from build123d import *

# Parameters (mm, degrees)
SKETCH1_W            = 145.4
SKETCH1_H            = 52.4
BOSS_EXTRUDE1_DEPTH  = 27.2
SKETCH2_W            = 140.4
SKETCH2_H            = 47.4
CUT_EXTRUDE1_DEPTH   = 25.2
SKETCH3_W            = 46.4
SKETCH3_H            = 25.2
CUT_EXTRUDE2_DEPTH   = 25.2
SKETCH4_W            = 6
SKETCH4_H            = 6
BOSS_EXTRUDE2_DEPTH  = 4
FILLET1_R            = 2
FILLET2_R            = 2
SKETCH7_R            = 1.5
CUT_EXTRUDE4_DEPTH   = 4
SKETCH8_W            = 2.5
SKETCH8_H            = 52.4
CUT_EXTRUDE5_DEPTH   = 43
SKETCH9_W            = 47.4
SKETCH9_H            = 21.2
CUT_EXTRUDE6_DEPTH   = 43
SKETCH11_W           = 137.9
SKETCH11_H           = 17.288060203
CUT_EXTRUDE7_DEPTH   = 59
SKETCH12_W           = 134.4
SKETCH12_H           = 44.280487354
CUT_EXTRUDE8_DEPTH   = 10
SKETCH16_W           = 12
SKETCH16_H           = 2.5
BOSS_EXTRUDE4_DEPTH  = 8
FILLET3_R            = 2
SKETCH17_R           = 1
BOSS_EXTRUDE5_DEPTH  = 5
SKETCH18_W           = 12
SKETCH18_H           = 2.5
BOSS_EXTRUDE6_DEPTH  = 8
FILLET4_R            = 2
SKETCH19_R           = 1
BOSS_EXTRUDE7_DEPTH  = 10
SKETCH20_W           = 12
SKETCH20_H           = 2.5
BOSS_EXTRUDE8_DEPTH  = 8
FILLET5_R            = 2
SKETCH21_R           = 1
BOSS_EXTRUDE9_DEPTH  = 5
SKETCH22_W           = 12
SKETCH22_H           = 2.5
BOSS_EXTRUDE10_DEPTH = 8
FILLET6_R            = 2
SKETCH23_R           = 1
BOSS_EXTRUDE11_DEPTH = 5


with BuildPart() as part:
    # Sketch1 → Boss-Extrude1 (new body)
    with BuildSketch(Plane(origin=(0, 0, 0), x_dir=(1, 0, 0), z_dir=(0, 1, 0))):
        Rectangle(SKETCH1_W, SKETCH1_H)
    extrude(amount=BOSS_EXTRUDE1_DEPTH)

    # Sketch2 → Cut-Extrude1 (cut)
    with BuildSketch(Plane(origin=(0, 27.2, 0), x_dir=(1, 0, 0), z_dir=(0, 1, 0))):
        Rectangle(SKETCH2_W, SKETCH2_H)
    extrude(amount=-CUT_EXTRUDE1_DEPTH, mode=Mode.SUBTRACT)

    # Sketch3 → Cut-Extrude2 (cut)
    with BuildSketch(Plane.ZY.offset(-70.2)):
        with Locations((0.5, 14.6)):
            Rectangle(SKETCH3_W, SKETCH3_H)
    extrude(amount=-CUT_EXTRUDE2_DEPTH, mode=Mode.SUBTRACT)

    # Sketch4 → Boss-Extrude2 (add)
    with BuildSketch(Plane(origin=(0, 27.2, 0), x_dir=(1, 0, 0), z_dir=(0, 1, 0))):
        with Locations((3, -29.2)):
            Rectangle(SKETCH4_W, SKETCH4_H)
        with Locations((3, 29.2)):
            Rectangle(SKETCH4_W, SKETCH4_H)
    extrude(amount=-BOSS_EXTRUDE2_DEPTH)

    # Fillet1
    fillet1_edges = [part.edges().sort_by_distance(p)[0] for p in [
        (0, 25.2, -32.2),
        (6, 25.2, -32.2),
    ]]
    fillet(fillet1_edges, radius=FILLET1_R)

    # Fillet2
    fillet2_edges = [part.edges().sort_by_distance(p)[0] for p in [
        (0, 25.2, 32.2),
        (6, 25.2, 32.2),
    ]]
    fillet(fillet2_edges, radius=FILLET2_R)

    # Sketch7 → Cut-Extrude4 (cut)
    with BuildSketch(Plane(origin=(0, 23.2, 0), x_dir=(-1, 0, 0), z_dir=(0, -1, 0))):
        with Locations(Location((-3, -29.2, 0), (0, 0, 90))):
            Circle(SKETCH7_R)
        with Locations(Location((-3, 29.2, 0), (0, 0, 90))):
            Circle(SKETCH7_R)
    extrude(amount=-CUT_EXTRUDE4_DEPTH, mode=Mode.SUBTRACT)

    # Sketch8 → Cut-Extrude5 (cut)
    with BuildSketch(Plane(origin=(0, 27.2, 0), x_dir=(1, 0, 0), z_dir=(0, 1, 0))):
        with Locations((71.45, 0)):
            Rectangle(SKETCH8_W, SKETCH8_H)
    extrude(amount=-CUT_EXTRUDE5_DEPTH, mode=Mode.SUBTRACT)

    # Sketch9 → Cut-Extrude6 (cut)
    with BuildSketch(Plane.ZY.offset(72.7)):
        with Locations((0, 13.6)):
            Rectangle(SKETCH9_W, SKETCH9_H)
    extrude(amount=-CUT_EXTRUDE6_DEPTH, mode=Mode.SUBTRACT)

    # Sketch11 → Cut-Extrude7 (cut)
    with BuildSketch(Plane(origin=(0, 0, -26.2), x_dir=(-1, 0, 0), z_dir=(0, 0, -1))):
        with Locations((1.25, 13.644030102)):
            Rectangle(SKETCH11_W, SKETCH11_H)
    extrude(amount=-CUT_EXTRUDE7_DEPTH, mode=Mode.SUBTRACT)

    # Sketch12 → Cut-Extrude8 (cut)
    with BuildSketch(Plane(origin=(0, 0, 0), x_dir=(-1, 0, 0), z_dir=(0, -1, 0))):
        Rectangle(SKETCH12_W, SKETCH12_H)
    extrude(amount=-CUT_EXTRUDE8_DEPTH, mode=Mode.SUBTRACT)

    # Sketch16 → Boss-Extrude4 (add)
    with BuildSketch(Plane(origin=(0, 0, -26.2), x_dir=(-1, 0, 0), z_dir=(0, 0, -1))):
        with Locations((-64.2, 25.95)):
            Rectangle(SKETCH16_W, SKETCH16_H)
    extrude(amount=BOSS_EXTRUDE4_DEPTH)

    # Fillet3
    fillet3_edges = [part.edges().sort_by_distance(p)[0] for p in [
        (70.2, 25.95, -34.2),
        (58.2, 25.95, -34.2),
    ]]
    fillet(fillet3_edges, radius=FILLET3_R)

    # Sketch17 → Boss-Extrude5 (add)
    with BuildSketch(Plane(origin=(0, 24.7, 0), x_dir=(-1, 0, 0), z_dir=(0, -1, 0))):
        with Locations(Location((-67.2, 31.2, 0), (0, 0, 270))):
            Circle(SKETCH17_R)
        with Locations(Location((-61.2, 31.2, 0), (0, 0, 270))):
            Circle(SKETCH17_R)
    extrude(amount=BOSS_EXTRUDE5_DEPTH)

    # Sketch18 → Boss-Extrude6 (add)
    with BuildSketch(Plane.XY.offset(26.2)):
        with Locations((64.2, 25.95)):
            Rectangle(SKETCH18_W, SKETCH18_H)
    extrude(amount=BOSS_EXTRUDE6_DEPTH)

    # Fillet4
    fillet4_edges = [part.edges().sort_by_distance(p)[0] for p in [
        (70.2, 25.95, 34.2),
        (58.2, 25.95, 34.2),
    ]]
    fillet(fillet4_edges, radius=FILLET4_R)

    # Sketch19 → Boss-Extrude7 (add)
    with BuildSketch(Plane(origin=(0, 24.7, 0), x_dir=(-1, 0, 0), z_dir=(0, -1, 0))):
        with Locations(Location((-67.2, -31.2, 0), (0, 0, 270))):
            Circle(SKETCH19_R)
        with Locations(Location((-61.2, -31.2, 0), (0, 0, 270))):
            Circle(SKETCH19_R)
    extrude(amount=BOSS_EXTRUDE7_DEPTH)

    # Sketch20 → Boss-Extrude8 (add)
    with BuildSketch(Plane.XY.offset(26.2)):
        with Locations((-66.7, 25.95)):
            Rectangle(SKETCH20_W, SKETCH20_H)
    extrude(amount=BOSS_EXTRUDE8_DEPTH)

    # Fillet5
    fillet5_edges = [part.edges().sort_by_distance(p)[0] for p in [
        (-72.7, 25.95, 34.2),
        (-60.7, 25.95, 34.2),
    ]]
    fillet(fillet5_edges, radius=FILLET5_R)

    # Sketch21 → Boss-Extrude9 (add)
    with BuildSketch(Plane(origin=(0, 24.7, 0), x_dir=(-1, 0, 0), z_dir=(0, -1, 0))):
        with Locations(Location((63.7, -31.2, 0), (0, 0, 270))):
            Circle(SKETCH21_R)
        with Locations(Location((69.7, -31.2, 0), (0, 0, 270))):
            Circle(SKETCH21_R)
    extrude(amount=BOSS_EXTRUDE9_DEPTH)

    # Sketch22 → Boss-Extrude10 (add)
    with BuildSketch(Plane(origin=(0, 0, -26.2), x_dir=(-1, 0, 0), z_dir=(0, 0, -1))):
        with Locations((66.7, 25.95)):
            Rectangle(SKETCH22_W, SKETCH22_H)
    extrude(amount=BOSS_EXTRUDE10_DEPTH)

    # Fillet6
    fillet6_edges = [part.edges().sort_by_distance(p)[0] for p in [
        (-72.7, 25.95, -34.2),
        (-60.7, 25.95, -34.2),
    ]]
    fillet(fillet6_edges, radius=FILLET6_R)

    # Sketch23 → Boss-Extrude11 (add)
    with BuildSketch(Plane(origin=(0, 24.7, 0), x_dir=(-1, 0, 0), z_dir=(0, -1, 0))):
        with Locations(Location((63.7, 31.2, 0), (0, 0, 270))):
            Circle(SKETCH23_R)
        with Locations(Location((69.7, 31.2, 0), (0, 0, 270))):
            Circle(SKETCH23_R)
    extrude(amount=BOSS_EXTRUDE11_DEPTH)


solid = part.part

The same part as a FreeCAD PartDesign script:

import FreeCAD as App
import Part
import Sketcher

V = App.Vector
Q = App.Units.Quantity


def edges_at(feature, points):
    """Names of the edges that pass closest to the given points."""
    edges = feature.Shape.Edges
    near = lambda p: min(range(len(edges)), key=lambda i: edges[i].distToShape(Part.Vertex(*p))[0])
    return sorted({f"Edge{near(p) + 1}" for p in points})

doc = App.newDocument("Part")
body = doc.addObject("PartDesign::Body", "Body")

sketch1 = doc.addObject("Sketcher::SketchObject", "Sketch")
body.addObject(sketch1)
sketch1.AttachmentSupport = (doc.XZ_Plane, [""])
sketch1.MapMode = "FlatFace"
sketch1.addGeometry([
    Part.LineSegment(V(-73, -26, 0), V(-73, 26, 0)),
    Part.LineSegment(V(-73, 26, 0), V(73, 26, 0)),
    Part.LineSegment(V(73, 26, 0), V(73, -26, 0)),
    Part.LineSegment(V(73, -26, 0), V(-73, -26, 0)),
], False)
sketch1.addConstraint([
    Sketcher.Constraint("Coincident", 0, 2, 1, 1),
    Sketcher.Constraint("Coincident", 1, 2, 2, 1),
    Sketcher.Constraint("Coincident", 2, 2, 3, 1),
    Sketcher.Constraint("Coincident", 3, 2, 0, 1),
    Sketcher.Constraint("Vertical", 0),
    Sketcher.Constraint("Horizontal", 1),
    Sketcher.Constraint("Vertical", 2),
    Sketcher.Constraint("Horizontal", 3),
    Sketcher.Constraint("Symmetric", 0, 2, 2, 2, -1, 1),
    Sketcher.Constraint("DistanceX", 1, 1, 1, 2, Q("145.4 mm")),
    Sketcher.Constraint("DistanceY", 0, 1, 0, 2, Q("52.4 mm")),
])
pad1 = doc.addObject("PartDesign::Pad", "Pad")
body.addObject(pad1)
pad1.Profile = sketch1
pad1.Length = 27.2
pad1.Reversed = True

sketch2 = doc.addObject("Sketcher::SketchObject", "Sketch001")
body.addObject(sketch2)
sketch2.AttachmentSupport = (doc.XZ_Plane, [""])
sketch2.MapMode = "FlatFace"
sketch2.AttachmentOffset = App.Placement(V(0, 0, -27.2), App.Rotation())
sketch2.addGeometry([
    Part.LineSegment(V(-70, -24, 0), V(-70, 24, 0)),
    Part.LineSegment(V(-70, 24, 0), V(70, 24, 0)),
    Part.LineSegment(V(70, 24, 0), V(70, -24, 0)),
    Part.LineSegment(V(70, -24, 0), V(-70, -24, 0)),
], False)
sketch2.addConstraint([
    Sketcher.Constraint("Coincident", 0, 2, 1, 1),
    Sketcher.Constraint("Coincident", 1, 2, 2, 1),
    Sketcher.Constraint("Coincident", 2, 2, 3, 1),
    Sketcher.Constraint("Coincident", 3, 2, 0, 1),
    Sketcher.Constraint("Vertical", 0),
    Sketcher.Constraint("Horizontal", 1),
    Sketcher.Constraint("Vertical", 2),
    Sketcher.Constraint("Horizontal", 3),
    Sketcher.Constraint("Symmetric", 0, 2, 2, 2, -1, 1),
    Sketcher.Constraint("DistanceX", 1, 1, 1, 2, Q("140.4 mm")),
    Sketcher.Constraint("DistanceY", 0, 1, 0, 2, Q("47.4 mm")),
])
pocket1 = doc.addObject("PartDesign::Pocket", "Pocket")
body.addObject(pocket1)
pocket1.Profile = sketch2
pocket1.Length = 25.2
pocket1.Reversed = True

sketch3 = doc.addObject("Sketcher::SketchObject", "Sketch002")
body.addObject(sketch3)
sketch3.AttachmentSupport = (doc.YZ_Plane, [""])
sketch3.MapMode = "FlatFace"
sketch3.AttachmentOffset = App.Placement(V(0, 0, 70.2), App.Rotation())
sketch3.addGeometry([
    Part.LineSegment(V(27, -23, 0), V(2, -23, 0)),
    Part.LineSegment(V(2, -23, 0), V(2, 24, 0)),
    Part.LineSegment(V(2, 24, 0), V(27, 24, 0)),
    Part.LineSegment(V(27, 24, 0), V(27, -23, 0)),
], False)
sketch3.addConstraint([
    Sketcher.Constraint("Coincident", 0, 2, 1, 1),
    Sketcher.Constraint("Coincident", 1, 2, 2, 1),
    Sketcher.Constraint("Coincident", 2, 2, 3, 1),
    Sketcher.Constraint("Coincident", 3, 2, 0, 1),
    Sketcher.Constraint("Horizontal", 0),
    Sketcher.Constraint("Vertical", 1),
    Sketcher.Constraint("Horizontal", 2),
    Sketcher.Constraint("Vertical", 3),
    Sketcher.Constraint("DistanceX", 0, 2, 0, 1, Q("25.2 mm")),
    Sketcher.Constraint("DistanceY", 1, 1, 1, 2, Q("46.4 mm")),
    Sketcher.Constraint("DistanceX", -1, 1, 0, 2, Q("2 mm")),
    Sketcher.Constraint("DistanceY", 0, 2, -1, 1, Q("22.7 mm")),
])
pocket2 = doc.addObject("PartDesign::Pocket", "Pocket001")
body.addObject(pocket2)
pocket2.Profile = sketch3
pocket2.Length = 25.2
pocket2.Reversed = True

sketch4 = doc.addObject("Sketcher::SketchObject", "Sketch003")
body.addObject(sketch4)
sketch4.AttachmentSupport = (doc.XZ_Plane, [""])
sketch4.MapMode = "FlatFace"
sketch4.AttachmentOffset = App.Placement(V(0, 0, -27.2), App.Rotation())
sketch4.addGeometry([
    Part.LineSegment(V(0, 26, 0), V(0, 32, 0)),
    Part.LineSegment(V(0, 32, 0), V(6, 32, 0)),
    Part.LineSegment(V(6, 32, 0), V(6, 26, 0)),
    Part.LineSegment(V(6, 26, 0), V(0, 26, 0)),
    Part.LineSegment(V(0, -32, 0), V(0, -26, 0)),
    Part.LineSegment(V(0, -26, 0), V(6, -26, 0)),
    Part.LineSegment(V(6, -26, 0), V(6, -32, 0)),
    Part.LineSegment(V(6, -32, 0), V(0, -32, 0)),
], False)
sketch4.addConstraint([
    Sketcher.Constraint("Coincident", 0, 2, 1, 1),
    Sketcher.Constraint("Coincident", 1, 2, 2, 1),
    Sketcher.Constraint("Coincident", 2, 2, 3, 1),
    Sketcher.Constraint("Coincident", 3, 2, 0, 1),
    Sketcher.Constraint("Coincident", 4, 2, 5, 1),
    Sketcher.Constraint("Coincident", 5, 2, 6, 1),
    Sketcher.Constraint("Coincident", 6, 2, 7, 1),
    Sketcher.Constraint("Coincident", 7, 2, 4, 1),
    Sketcher.Constraint("Vertical", 0),
    Sketcher.Constraint("Horizontal", 1),
    Sketcher.Constraint("Vertical", 2),
    Sketcher.Constraint("Horizontal", 3),
    Sketcher.Constraint("Vertical", 4),
    Sketcher.Constraint("Horizontal", 5),
    Sketcher.Constraint("Vertical", 6),
    Sketcher.Constraint("Horizontal", 7),
    Sketcher.Constraint("Symmetric", 3, 2, 4, 2, -1, 1),
    Sketcher.Constraint("Symmetric", 1, 2, 6, 2, -1),
    Sketcher.Constraint("PointOnObject", 0, 2, -2),
    Sketcher.Constraint("Equal", 7, 0),
    Sketcher.Constraint("DistanceX", 1, 1, 1, 2, Q("6 mm")),
    Sketcher.Constraint("DistanceY", -1, 1, 0, 2, Q("32.2 mm")),
])
pad2 = doc.addObject("PartDesign::Pad", "Pad001")
body.addObject(pad2)
pad2.Profile = sketch4
pad2.Length = 4
doc.recompute()

fillet = doc.addObject("PartDesign::Fillet", "Fillet")
body.addObject(fillet)
fillet.Base = (pad2, edges_at(pad2, [(0, 25.2, -32.2), (6, 25.2, -32.2)]))
fillet.Radius = 2
doc.recompute()

fillet2 = doc.addObject("PartDesign::Fillet", "Fillet001")
body.addObject(fillet2)
fillet2.Base = (fillet, edges_at(fillet, [(0, 25.2, 32.2), (6, 25.2, 32.2)]))
fillet2.Radius = 2

sketch5 = doc.addObject("Sketcher::SketchObject", "Sketch004")
body.addObject(sketch5)
sketch5.AttachmentSupport = (doc.XZ_Plane, [""])
sketch5.MapMode = "FlatFace"
sketch5.AttachmentOffset = App.Placement(V(0, 0, -23.2), App.Rotation())
sketch5.addGeometry([
    Part.Circle(V(3, 29.2, 0), V(0, 0, 1), 1.5),
    Part.Circle(V(3, -29.2, 0), V(0, 0, 1), 1.5),
], False)
sketch5.addConstraint([
    Sketcher.Constraint("Equal", 0, 1),
    Sketcher.Constraint("Symmetric", 0, 3, 1, 3, -1),
    Sketcher.Constraint("Diameter", 0, Q("3 mm")),
    Sketcher.Constraint("DistanceX", -1, 1, 0, 3, Q("3 mm")),
    Sketcher.Constraint("DistanceY", -1, 1, 0, 3, Q("29.2 mm")),
])
pocket3 = doc.addObject("PartDesign::Pocket", "Pocket002")
body.addObject(pocket3)
pocket3.Profile = sketch5
pocket3.Length = 4

sketch6 = doc.addObject("Sketcher::SketchObject", "Sketch005")
body.addObject(sketch6)
sketch6.AttachmentSupport = (doc.XZ_Plane, [""])
sketch6.MapMode = "FlatFace"
sketch6.AttachmentOffset = App.Placement(V(0, 0, -27.2), App.Rotation())
sketch6.addGeometry([
    Part.LineSegment(V(70.2, -26.2, 0), V(70.2, 26.2, 0)),
    Part.LineSegment(V(70.2, 26.2, 0), V(72.7, 26.2, 0)),
    Part.LineSegment(V(72.7, 26.2, 0), V(72.7, -26.2, 0)),
    Part.LineSegment(V(72.7, -26.2, 0), V(70.2, -26.2, 0)),
], False)
sketch6.addConstraint([
    Sketcher.Constraint("Coincident", 0, 2, 1, 1),
    Sketcher.Constraint("Coincident", 1, 2, 2, 1),
    Sketcher.Constraint("Coincident", 2, 2, 3, 1),
    Sketcher.Constraint("Coincident", 3, 2, 0, 1),
    Sketcher.Constraint("Vertical", 0),
    Sketcher.Constraint("Horizontal", 1),
    Sketcher.Constraint("Vertical", 2),
    Sketcher.Constraint("Horizontal", 3),
    Sketcher.Constraint("DistanceX", 1, 1, 1, 2, Q("2.5 mm")),
    Sketcher.Constraint("DistanceY", 0, 1, 0, 2, Q("52.4 mm")),
    Sketcher.Constraint("DistanceX", -1, 1, 0, 2, Q("70.2 mm")),
    Sketcher.Constraint("DistanceY", -1, 1, 0, 2, Q("26.2 mm")),
])
pocket4 = doc.addObject("PartDesign::Pocket", "Pocket003")
body.addObject(pocket4)
pocket4.Profile = sketch6
pocket4.Length = 43
pocket4.Reversed = True

sketch7 = doc.addObject("Sketcher::SketchObject", "Sketch006")
body.addObject(sketch7)
sketch7.AttachmentSupport = (doc.YZ_Plane, [""])
sketch7.MapMode = "FlatFace"
sketch7.AttachmentOffset = App.Placement(V(0, 0, -72.7), App.Rotation())
sketch7.addGeometry([
    Part.LineSegment(V(24, -24, 0), V(3, -24, 0)),
    Part.LineSegment(V(3, -24, 0), V(3, 24, 0)),
    Part.LineSegment(V(3, 24, 0), V(24, 24, 0)),
    Part.LineSegment(V(24, 24, 0), V(24, -24, 0)),
], False)
sketch7.addConstraint([
    Sketcher.Constraint("Coincident", 0, 2, 1, 1),
    Sketcher.Constraint("Coincident", 1, 2, 2, 1),
    Sketcher.Constraint("Coincident", 2, 2, 3, 1),
    Sketcher.Constraint("Coincident", 3, 2, 0, 1),
    Sketcher.Constraint("Horizontal", 0),
    Sketcher.Constraint("Vertical", 1),
    Sketcher.Constraint("Horizontal", 2),
    Sketcher.Constraint("Vertical", 3),
    Sketcher.Constraint("DistanceX", 0, 2, 0, 1, Q("21.2 mm")),
    Sketcher.Constraint("DistanceY", 1, 1, 1, 2, Q("47.4 mm")),
    Sketcher.Constraint("DistanceX", -1, 1, 0, 2, Q("3 mm")),
    Sketcher.Constraint("DistanceY", 0, 2, -1, 1, Q("23.7 mm")),
])
pocket5 = doc.addObject("PartDesign::Pocket", "Pocket004")
body.addObject(pocket5)
pocket5.Profile = sketch7
pocket5.Length = 43
pocket5.Reversed = True

sketch8 = doc.addObject("Sketcher::SketchObject", "Sketch007")
body.addObject(sketch8)
sketch8.AttachmentSupport = (doc.XY_Plane, [""])
sketch8.MapMode = "FlatFace"
sketch8.AttachmentOffset = App.Placement(V(0, 0, -26.2), App.Rotation())
sketch8.addGeometry([
    Part.LineSegment(V(68, 22, 0), V(68, 5, 0)),
    Part.LineSegment(V(68, 5, 0), V(-70, 5, 0)),
    Part.LineSegment(V(-70, 5, 0), V(-70, 22, 0)),
    Part.LineSegment(V(-70, 22, 0), V(68, 22, 0)),
], False)
sketch8.addConstraint([
    Sketcher.Constraint("Coincident", 0, 2, 1, 1),
    Sketcher.Constraint("Coincident", 1, 2, 2, 1),
    Sketcher.Constraint("Coincident", 2, 2, 3, 1),
    Sketcher.Constraint("Coincident", 3, 2, 0, 1),
    Sketcher.Constraint("Vertical", 0),
    Sketcher.Constraint("Horizontal", 1),
    Sketcher.Constraint("Vertical", 2),
    Sketcher.Constraint("Horizontal", 3),
    Sketcher.Constraint("DistanceX", 1, 2, 1, 1, Q("137.9 mm")),
    Sketcher.Constraint("DistanceY", -1, 1, 0, 2, Q("5 mm")),
    Sketcher.Constraint("DistanceX", -1, 1, 0, 2, Q("67.7 mm")),
    Sketcher.Constraint("DistanceY", 0, 2, 0, 1, Q("17.28806 mm")),
])
pocket6 = doc.addObject("PartDesign::Pocket", "Pocket005")
body.addObject(pocket6)
pocket6.Profile = sketch8
pocket6.Length = 59
pocket6.Reversed = True

sketch9 = doc.addObject("Sketcher::SketchObject", "Sketch008")
body.addObject(sketch9)
sketch9.AttachmentSupport = (doc.XZ_Plane, [""])
sketch9.MapMode = "FlatFace"
sketch9.addGeometry([
    Part.LineSegment(V(67, -22, 0), V(67, 22, 0)),
    Part.LineSegment(V(67, 22, 0), V(-67, 22, 0)),
    Part.LineSegment(V(-67, 22, 0), V(-67, -22, 0)),
    Part.LineSegment(V(-67, -22, 0), V(67, -22, 0)),
], False)
sketch9.addConstraint([
    Sketcher.Constraint("Coincident", 0, 2, 1, 1),
    Sketcher.Constraint("Coincident", 1, 2, 2, 1),
    Sketcher.Constraint("Coincident", 2, 2, 3, 1),
    Sketcher.Constraint("Coincident", 3, 2, 0, 1),
    Sketcher.Constraint("Vertical", 0),
    Sketcher.Constraint("Horizontal", 1),
    Sketcher.Constraint("Vertical", 2),
    Sketcher.Constraint("Horizontal", 3),
    Sketcher.Constraint("Symmetric", 0, 2, 2, 2, -1, 1),
    Sketcher.Constraint("DistanceX", 1, 2, 1, 1, Q("134.4 mm")),
    Sketcher.Constraint("DistanceY", 0, 1, 0, 2, Q("44.280487 mm")),
])
pocket7 = doc.addObject("PartDesign::Pocket", "Pocket006")
body.addObject(pocket7)
pocket7.Profile = sketch9
pocket7.Length = 10

sketch10 = doc.addObject("Sketcher::SketchObject", "Sketch009")
body.addObject(sketch10)
sketch10.AttachmentSupport = (doc.XY_Plane, [""])
sketch10.MapMode = "FlatFace"
sketch10.AttachmentOffset = App.Placement(V(0, 0, -26.2), App.Rotation())
sketch10.addGeometry([
    Part.LineSegment(V(70.2, 27.2, 0), V(70.2, 24.7, 0)),
    Part.LineSegment(V(70.2, 24.7, 0), V(58.2, 24.7, 0)),
    Part.LineSegment(V(58.2, 24.7, 0), V(58.2, 27.2, 0)),
    Part.LineSegment(V(58.2, 27.2, 0), V(70.2, 27.2, 0)),
], False)
sketch10.addConstraint([
    Sketcher.Constraint("Coincident", 0, 2, 1, 1),
    Sketcher.Constraint("Coincident", 1, 2, 2, 1),
    Sketcher.Constraint("Coincident", 2, 2, 3, 1),
    Sketcher.Constraint("Coincident", 3, 2, 0, 1),
    Sketcher.Constraint("Vertical", 0),
    Sketcher.Constraint("Horizontal", 1),
    Sketcher.Constraint("Vertical", 2),
    Sketcher.Constraint("Horizontal", 3),
    Sketcher.Constraint("DistanceX", 1, 2, 1, 1, Q("12 mm")),
    Sketcher.Constraint("DistanceY", 0, 2, 0, 1, Q("2.5 mm")),
    Sketcher.Constraint("DistanceX", -1, 1, 0, 2, Q("70.2 mm")),
    Sketcher.Constraint("DistanceY", -1, 1, 0, 2, Q("24.7 mm")),
])
pad3 = doc.addObject("PartDesign::Pad", "Pad002")
body.addObject(pad3)
pad3.Profile = sketch10
pad3.Length = 8
pad3.Reversed = True
doc.recompute()

fillet3 = doc.addObject("PartDesign::Fillet", "Fillet002")
body.addObject(fillet3)
fillet3.Base = (pad3, edges_at(pad3, [(70.2, 25.95, -34.2), (58.2, 25.95, -34.2)]))
fillet3.Radius = 2

sketch11 = doc.addObject("Sketcher::SketchObject", "Sketch010")
body.addObject(sketch11)
sketch11.AttachmentSupport = (doc.XZ_Plane, [""])
sketch11.MapMode = "FlatFace"
sketch11.AttachmentOffset = App.Placement(V(0, 0, -24.7), App.Rotation())
sketch11.addGeometry([
    Part.Circle(V(67.2, -31.2, 0), V(0, 0, 1), 1),
    Part.Circle(V(61.2, -31.2, 0), V(0, 0, 1), 1),
], False)
sketch11.addConstraint([
    Sketcher.Constraint("Equal", 0, 1),
    Sketcher.Constraint("Horizontal", 0, 3, 1, 3),
    Sketcher.Constraint("Diameter", 0, Q("2 mm")),
    Sketcher.Constraint("DistanceX", 1, 3, 0, 3, Q("6 mm")),
    Sketcher.Constraint("DistanceX", -1, 1, 0, 3, Q("67.2 mm")),
    Sketcher.Constraint("DistanceY", 0, 3, -1, 1, Q("31.2 mm")),
])
pad4 = doc.addObject("PartDesign::Pad", "Pad003")
body.addObject(pad4)
pad4.Profile = sketch11
pad4.Length = 5

sketch12 = doc.addObject("Sketcher::SketchObject", "Sketch011")
body.addObject(sketch12)
sketch12.AttachmentSupport = (doc.XY_Plane, [""])
sketch12.MapMode = "FlatFace"
sketch12.AttachmentOffset = App.Placement(V(0, 0, 26.2), App.Rotation())
sketch12.addGeometry([
    Part.LineSegment(V(58.2, 27.2, 0), V(58.2, 24.7, 0)),
    Part.LineSegment(V(58.2, 24.7, 0), V(70.2, 24.7, 0)),
    Part.LineSegment(V(70.2, 24.7, 0), V(70.2, 27.2, 0)),
    Part.LineSegment(V(70.2, 27.2, 0), V(58.2, 27.2, 0)),
], False)
sketch12.addConstraint([
    Sketcher.Constraint("Coincident", 0, 2, 1, 1),
    Sketcher.Constraint("Coincident", 1, 2, 2, 1),
    Sketcher.Constraint("Coincident", 2, 2, 3, 1),
    Sketcher.Constraint("Coincident", 3, 2, 0, 1),
    Sketcher.Constraint("Vertical", 0),
    Sketcher.Constraint("Horizontal", 1),
    Sketcher.Constraint("Vertical", 2),
    Sketcher.Constraint("Horizontal", 3),
    Sketcher.Constraint("DistanceX", 1, 1, 1, 2, Q("12 mm")),
    Sketcher.Constraint("DistanceY", 0, 2, 0, 1, Q("2.5 mm")),
    Sketcher.Constraint("DistanceX", -1, 1, 0, 2, Q("58.2 mm")),
    Sketcher.Constraint("DistanceY", -1, 1, 0, 2, Q("24.7 mm")),
])
pad5 = doc.addObject("PartDesign::Pad", "Pad004")
body.addObject(pad5)
pad5.Profile = sketch12
pad5.Length = 8
doc.recompute()

fillet4 = doc.addObject("PartDesign::Fillet", "Fillet003")
body.addObject(fillet4)
fillet4.Base = (pad5, edges_at(pad5, [(70.2, 25.95, 34.2), (58.2, 25.95, 34.2)]))
fillet4.Radius = 2

sketch13 = doc.addObject("Sketcher::SketchObject", "Sketch012")
body.addObject(sketch13)
sketch13.AttachmentSupport = (doc.XZ_Plane, [""])
sketch13.MapMode = "FlatFace"
sketch13.AttachmentOffset = App.Placement(V(0, 0, -24.7), App.Rotation())
sketch13.addGeometry([
    Part.Circle(V(67.2, 31.2, 0), V(0, 0, 1), 1),
    Part.Circle(V(61.2, 31.2, 0), V(0, 0, 1), 1),
], False)
sketch13.addConstraint([
    Sketcher.Constraint("Equal", 0, 1),
    Sketcher.Constraint("Horizontal", 0, 3, 1, 3),
    Sketcher.Constraint("Diameter", 0, Q("2 mm")),
    Sketcher.Constraint("DistanceX", 1, 3, 0, 3, Q("6 mm")),
    Sketcher.Constraint("DistanceX", -1, 1, 0, 3, Q("67.2 mm")),
    Sketcher.Constraint("DistanceY", -1, 1, 0, 3, Q("31.2 mm")),
])
pad6 = doc.addObject("PartDesign::Pad", "Pad005")
body.addObject(pad6)
pad6.Profile = sketch13
pad6.Length = 10

sketch14 = doc.addObject("Sketcher::SketchObject", "Sketch013")
body.addObject(sketch14)
sketch14.AttachmentSupport = (doc.XY_Plane, [""])
sketch14.MapMode = "FlatFace"
sketch14.AttachmentOffset = App.Placement(V(0, 0, 26.2), App.Rotation())
sketch14.addGeometry([
    Part.LineSegment(V(-72.7, 27.2, 0), V(-72.7, 24.7, 0)),
    Part.LineSegment(V(-72.7, 24.7, 0), V(-60.7, 24.7, 0)),
    Part.LineSegment(V(-60.7, 24.7, 0), V(-60.7, 27.2, 0)),
    Part.LineSegment(V(-60.7, 27.2, 0), V(-72.7, 27.2, 0)),
], False)
sketch14.addConstraint([
    Sketcher.Constraint("Coincident", 0, 2, 1, 1),
    Sketcher.Constraint("Coincident", 1, 2, 2, 1),
    Sketcher.Constraint("Coincident", 2, 2, 3, 1),
    Sketcher.Constraint("Coincident", 3, 2, 0, 1),
    Sketcher.Constraint("Vertical", 0),
    Sketcher.Constraint("Horizontal", 1),
    Sketcher.Constraint("Vertical", 2),
    Sketcher.Constraint("Horizontal", 3),
    Sketcher.Constraint("DistanceX", 1, 1, 1, 2, Q("12 mm")),
    Sketcher.Constraint("DistanceY", 0, 2, 0, 1, Q("2.5 mm")),
    Sketcher.Constraint("DistanceX", 0, 2, -1, 1, Q("72.7 mm")),
    Sketcher.Constraint("DistanceY", -1, 1, 0, 2, Q("24.7 mm")),
])
pad7 = doc.addObject("PartDesign::Pad", "Pad006")
body.addObject(pad7)
pad7.Profile = sketch14
pad7.Length = 8
doc.recompute()

fillet5 = doc.addObject("PartDesign::Fillet", "Fillet004")
body.addObject(fillet5)
fillet5.Base = (pad7, edges_at(pad7, [(-72.7, 25.95, 34.2), (-60.7, 25.95, 34.2)]))
fillet5.Radius = 2

sketch15 = doc.addObject("Sketcher::SketchObject", "Sketch014")
body.addObject(sketch15)
sketch15.AttachmentSupport = (doc.XZ_Plane, [""])
sketch15.MapMode = "FlatFace"
sketch15.AttachmentOffset = App.Placement(V(0, 0, -24.7), App.Rotation())
sketch15.addGeometry([
    Part.Circle(V(-63.7, 31.2, 0), V(0, 0, 1), 1),
    Part.Circle(V(-69.7, 31.2, 0), V(0, 0, 1), 1),
], False)
sketch15.addConstraint([
    Sketcher.Constraint("Equal", 0, 1),
    Sketcher.Constraint("Horizontal", 0, 3, 1, 3),
    Sketcher.Constraint("Diameter", 0, Q("2 mm")),
    Sketcher.Constraint("DistanceX", 1, 3, 0, 3, Q("6 mm")),
    Sketcher.Constraint("DistanceX", 0, 3, -1, 1, Q("63.7 mm")),
    Sketcher.Constraint("DistanceY", -1, 1, 0, 3, Q("31.2 mm")),
])
pad8 = doc.addObject("PartDesign::Pad", "Pad007")
body.addObject(pad8)
pad8.Profile = sketch15
pad8.Length = 5

sketch16 = doc.addObject("Sketcher::SketchObject", "Sketch015")
body.addObject(sketch16)
sketch16.AttachmentSupport = (doc.XY_Plane, [""])
sketch16.MapMode = "FlatFace"
sketch16.AttachmentOffset = App.Placement(V(0, 0, -26.2), App.Rotation())
sketch16.addGeometry([
    Part.LineSegment(V(-60.7, 27.2, 0), V(-60.7, 24.7, 0)),
    Part.LineSegment(V(-60.7, 24.7, 0), V(-72.7, 24.7, 0)),
    Part.LineSegment(V(-72.7, 24.7, 0), V(-72.7, 27.2, 0)),
    Part.LineSegment(V(-72.7, 27.2, 0), V(-60.7, 27.2, 0)),
], False)
sketch16.addConstraint([
    Sketcher.Constraint("Coincident", 0, 2, 1, 1),
    Sketcher.Constraint("Coincident", 1, 2, 2, 1),
    Sketcher.Constraint("Coincident", 2, 2, 3, 1),
    Sketcher.Constraint("Coincident", 3, 2, 0, 1),
    Sketcher.Constraint("Vertical", 0),
    Sketcher.Constraint("Horizontal", 1),
    Sketcher.Constraint("Vertical", 2),
    Sketcher.Constraint("Horizontal", 3),
    Sketcher.Constraint("DistanceX", 1, 2, 1, 1, Q("12 mm")),
    Sketcher.Constraint("DistanceY", 0, 2, 0, 1, Q("2.5 mm")),
    Sketcher.Constraint("DistanceX", 0, 2, -1, 1, Q("60.7 mm")),
    Sketcher.Constraint("DistanceY", -1, 1, 0, 2, Q("24.7 mm")),
])
pad9 = doc.addObject("PartDesign::Pad", "Pad008")
body.addObject(pad9)
pad9.Profile = sketch16
pad9.Length = 8
pad9.Reversed = True
doc.recompute()

fillet6 = doc.addObject("PartDesign::Fillet", "Fillet005")
body.addObject(fillet6)
fillet6.Base = (pad9, edges_at(pad9, [(-72.7, 25.95, -34.2), (-60.7, 25.95, -34.2)]))
fillet6.Radius = 2

sketch17 = doc.addObject("Sketcher::SketchObject", "Sketch016")
body.addObject(sketch17)
sketch17.AttachmentSupport = (doc.XZ_Plane, [""])
sketch17.MapMode = "FlatFace"
sketch17.AttachmentOffset = App.Placement(V(0, 0, -24.7), App.Rotation())
sketch17.addGeometry([
    Part.Circle(V(-63.7, -31.2, 0), V(0, 0, 1), 1),
    Part.Circle(V(-69.7, -31.2, 0), V(0, 0, 1), 1),
], False)
sketch17.addConstraint([
    Sketcher.Constraint("Equal", 0, 1),
    Sketcher.Constraint("Horizontal", 0, 3, 1, 3),
    Sketcher.Constraint("Diameter", 0, Q("2 mm")),
    Sketcher.Constraint("DistanceX", 1, 3, 0, 3, Q("6 mm")),
    Sketcher.Constraint("DistanceX", 0, 3, -1, 1, Q("63.7 mm")),
    Sketcher.Constraint("DistanceY", 0, 3, -1, 1, Q("31.2 mm")),
])
pad10 = doc.addObject("PartDesign::Pad", "Pad009")
body.addObject(pad10)
pad10.Profile = sketch17
pad10.Length = 5

doc.recompute()
